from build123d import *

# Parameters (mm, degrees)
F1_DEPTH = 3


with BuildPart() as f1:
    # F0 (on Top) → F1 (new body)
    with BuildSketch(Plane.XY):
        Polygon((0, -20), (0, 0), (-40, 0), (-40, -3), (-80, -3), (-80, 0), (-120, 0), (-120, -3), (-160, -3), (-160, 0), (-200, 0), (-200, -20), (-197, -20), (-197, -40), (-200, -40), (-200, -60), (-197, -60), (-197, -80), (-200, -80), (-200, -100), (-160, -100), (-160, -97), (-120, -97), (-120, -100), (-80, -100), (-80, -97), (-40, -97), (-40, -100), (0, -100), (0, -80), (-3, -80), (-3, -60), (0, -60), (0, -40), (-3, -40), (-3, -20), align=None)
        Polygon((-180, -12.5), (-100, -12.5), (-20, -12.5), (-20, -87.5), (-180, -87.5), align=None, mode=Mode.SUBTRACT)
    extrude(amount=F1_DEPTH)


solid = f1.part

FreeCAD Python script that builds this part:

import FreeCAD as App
import Part
import Sketcher

doc = App.newDocument("Part")
body = doc.addObject("PartDesign::Body", "Body")

sketch1 = doc.addObject("Sketcher::SketchObject", "Sketch")
body.addObject(sketch1)
sketch1.AttachmentSupport = (doc.XY_Plane, [""])
sketch1.MapMode = "FlatFace"
sketch1.addGeometry([
    Part.LineSegment(App.Vector(0, -20, 0), App.Vector(0, 0, 0)),
    Part.LineSegment(App.Vector(0, 0, 0), App.Vector(-40, 0, 0)),
    Part.LineSegment(App.Vector(-40, 0, 0), App.Vector(-40, -3, 0)),
    Part.LineSegment(App.Vector(-40, -3, 0), App.Vector(-80, -3, 0)),
    Part.LineSegment(App.Vector(-80, -3, 0), App.Vector(-80, 0, 0)),
    Part.LineSegment(App.Vector(-80, 0, 0), App.Vector(-120, 0, 0)),
    Part.LineSegment(App.Vector(-120, 0, 0), App.Vector(-120, -3, 0)),
    Part.LineSegment(App.Vector(-120, -3, 0), App.Vector(-160, -3, 0)),
    Part.LineSegment(App.Vector(-160, -3, 0), App.Vector(-160, 0, 0)),
    Part.LineSegment(App.Vector(-160, 0, 0), App.Vector(-200, 0, 0)),
    Part.LineSegment(App.Vector(-200, 0, 0), App.Vector(-200, -20, 0)),
    Part.LineSegment(App.Vector(-200, -20, 0), App.Vector(-197, -20, 0)),
    Part.LineSegment(App.Vector(-197, -20, 0), App.Vector(-197, -40, 0)),
    Part.LineSegment(App.Vector(-197, -40, 0), App.Vector(-200, -40, 0)),
    Part.LineSegment(App.Vector(-200, -40, 0), App.Vector(-200, -60, 0)),
    Part.LineSegment(App.Vector(-200, -60, 0), App.Vector(-197, -60, 0)),
    Part.LineSegment(App.Vector(-197, -60, 0), App.Vector(-197, -80, 0)),
    Part.LineSegment(App.Vector(-197, -80, 0), App.Vector(-200, -80, 0)),
    Part.LineSegment(App.Vector(-200, -80, 0), App.Vector(-200, -100, 0)),
    Part.LineSegment(App.Vector(-200, -100, 0), App.Vector(-160, -100, 0)),
    Part.LineSegment(App.Vector(-160, -100, 0), App.Vector(-160, -97, 0)),
    Part.LineSegment(App.Vector(-160, -97, 0), App.Vector(-120, -97, 0)),
    Part.LineSegment(App.Vector(-120, -97, 0), App.Vector(-120, -100, 0)),
    Part.LineSegment(App.Vector(-120, -100, 0), App.Vector(-80, -100, 0)),
    Part.LineSegment(App.Vector(-80, -100, 0), App.Vector(-80, -97, 0)),
    Part.LineSegment(App.Vector(-80, -97, 0), App.Vector(-40, -97, 0)),
    Part.LineSegment(App.Vector(-40, -97, 0), App.Vector(-40, -100, 0)),
    Part.LineSegment(App.Vector(-40, -100, 0), App.Vector(0, -100, 0)),
    Part.LineSegment(App.Vector(0, -100, 0), App.Vector(0, -80, 0)),
    Part.LineSegment(App.Vector(0, -80, 0), App.Vector(-3, -80, 0)),
    Part.LineSegment(App.Vector(-3, -80, 0), App.Vector(-3, -60, 0)),
    Part.LineSegment(App.Vector(-3, -60, 0), App.Vector(0, -60, 0)),
    Part.LineSegment(App.Vector(0, -60, 0), App.Vector(0, -40, 0)),
    Part.LineSegment(App.Vector(0, -40, 0), App.Vector(-3, -40, 0)),
    Part.LineSegment(App.Vector(-3, -40, 0), App.Vector(-3, -20, 0)),
    Part.LineSegment(App.Vector(-3, -20, 0), App.Vector(0, -20, 0)),
    Part.LineSegment(App.Vector(-180, -87.5, 0), App.Vector(-180, -12.5, 0)),
    Part.LineSegment(App.Vector(-180, -12.5, 0), App.Vector(-20, -12.5, 0)),
    Part.LineSegment(App.Vector(-20, -12.5, 0), App.Vector(-20, -87.5, 0)),
    Part.LineSegment(App.Vector(-20, -87.5, 0), App.Vector(-180, -87.5, 0)),
], False)
sketch1.addConstraint([
    Sketcher.Constraint("Coincident", 0, 2, 1, 1),
    Sketcher.Constraint("Coincident", 1, 2, 2, 1),
    Sketcher.Constraint("Coincident", 2, 2, 3, 1),
    Sketcher.Constraint("Coincident", 3, 2, 4, 1),
    Sketcher.Constraint("Coincident", 4, 2, 5, 1),
    Sketcher.Constraint("Coincident", 5, 2, 6, 1),
    Sketcher.Constraint("Coincident", 6, 2, 7, 1),
    Sketcher.Constraint("Coincident", 7, 2, 8, 1),
    Sketcher.Constraint("Coincident", 8, 2, 9, 1),
    Sketcher.Constraint("Coincident", 9, 2, 10, 1),
    Sketcher.Constraint("Coincident", 10, 2, 11, 1),
    Sketcher.Constraint("Coincident", 11, 2, 12, 1),
    Sketcher.Constraint("Coincident", 12, 2, 13, 1),
    Sketcher.Constraint("Coincident", 13, 2, 14, 1),
    Sketcher.Constraint("Coincident", 14, 2, 15, 1),
    Sketcher.Constraint("Coincident", 15, 2, 16, 1),
    Sketcher.Constraint("Coincident", 16, 2, 17, 1),
    Sketcher.Constraint("Coincident", 17, 2, 18, 1),
    Sketcher.Constraint("Coincident", 18, 2, 19, 1),
    Sketcher.Constraint("Coincident", 19, 2, 20, 1),
    Sketcher.Constraint("Coincident", 20, 2, 21, 1),
    Sketcher.Constraint("Coincident", 21, 2, 22, 1),
    Sketcher.Constraint("Coincident", 22, 2, 23, 1),
    Sketcher.Constraint("Coincident", 23, 2, 24, 1),
    Sketcher.Constraint("Coincident", 24, 2, 25, 1),
    Sketcher.Constraint("Coincident", 25, 2, 26, 1),
    Sketcher.Constraint("Coincident", 26, 2, 27, 1),
    Sketcher.Constraint("Coincident", 27, 2, 28, 1),
    Sketcher.Constraint("Coincident", 28, 2, 29, 1),
    Sketcher.Constraint("Coincident", 29, 2, 30, 1),
    Sketcher.Constraint("Coincident", 30, 2, 31, 1),
    Sketcher.Constraint("Coincident", 31, 2, 32, 1),
    Sketcher.Constraint("Coincident", 32, 2, 33, 1),
    Sketcher.Constraint("Coincident", 33, 2, 34, 1),
    Sketcher.Constraint("Coincident", 34, 2, 35, 1),
    Sketcher.Constraint("Coincident", 35, 2, 0, 1),
    Sketcher.Constraint("Coincident", 36, 2, 37, 1),
    Sketcher.Constraint("Coincident", 37, 2, 38, 1),
    Sketcher.Constraint("Coincident", 38, 2, 39, 1),
    Sketcher.Constraint("Coincident", 39, 2, 36, 1),
    Sketcher.Constraint("Vertical", 0),
    Sketcher.Constraint("Horizontal", 1),
    Sketcher.Constraint("Vertical", 2),
    Sketcher.Constraint("Horizontal", 3),
    Sketcher.Constraint("Vertical", 4),
    Sketcher.Constraint("Horizontal", 5),
    Sketcher.Constraint("Vertical", 6),
    Sketcher.Constraint("Horizontal", 7),
    Sketcher.Constraint("Vertical", 8),
    Sketcher.Constraint("Horizontal", 9),
    Sketcher.Constraint("Vertical", 10),
    Sketcher.Constraint("Horizontal", 11),
    Sketcher.Constraint("Vertical", 12),
    Sketcher.Constraint("Horizontal", 13),
    Sketcher.Constraint("Vertical", 14),
    Sketcher.Constraint("Horizontal", 15),
    Sketcher.Constraint("Vertical", 16),
    Sketcher.Constraint("Horizontal", 17),
    Sketcher.Constraint("Vertical", 18),
    Sketcher.Constraint("Horizontal", 19),
    Sketcher.Constraint("Vertical", 20),
    Sketcher.Constraint("Horizontal", 21),
    Sketcher.Constraint("Vertical", 22),
    Sketcher.Constraint("Horizontal", 23),
    Sketcher.Constraint("Vertical", 24),
    Sketcher.Constraint("Horizontal", 25),
    Sketcher.Constraint("Vertical", 26),
    Sketcher.Constraint("Horizontal", 27),
    Sketcher.Constraint("Vertical", 28),
    Sketcher.Constraint("Horizontal", 29),
    Sketcher.Constraint("Vertical", 30),
    Sketcher.Constraint("Horizontal", 31),
    Sketcher.Constraint("Vertical", 32),
    Sketcher.Constraint("Horizontal", 33),
    Sketcher.Constraint("Vertical", 34),
    Sketcher.Constraint("Horizontal", 35),
    Sketcher.Constraint("Vertical", 36),
    Sketcher.Constraint("Horizontal", 37),
    Sketcher.Constraint("Vertical", 38),
    Sketcher.Constraint("Horizontal", 39),
    Sketcher.Constraint("Coincident", 0, 2, -1, 1),
    Sketcher.Constraint("PointOnObject", 4, 2, -1),
    Sketcher.Constraint("PointOnObject", 8, 2, -1),
    Sketcher.Constraint("PointOnObject", 27, 2, -2),
    Sketcher.Constraint("PointOnObject", 31, 2, -2),
    Sketcher.Constraint("Horizontal", 3, 2, 6, 2),
    Sketcher.Constraint("Horizontal", 19, 2, 22, 2),
    Sketcher.Constraint("Horizontal", 21, 2, 24, 2),
    Sketcher.Constraint("Horizontal", 23, 2, 26, 2),
    Sketcher.Constraint("Horizontal", 17, 2, 28, 2),
    Sketcher.Constraint("Horizontal", 15, 2, 30, 2),
    Sketcher.Constraint("Horizontal", 13, 2, 32, 2),
    Sketcher.Constraint("Horizontal", 11, 2, 34, 2),
    Sketcher.Constraint("Vertical", 10, 2, 13, 2),
    Sketcher.Constraint("Vertical", 12, 2, 15, 2),
    Sketcher.Constraint("Vertical", 14, 2, 17, 2),
    Sketcher.Constraint("Vertical", 8, 2, 19, 2),
    Sketcher.Constraint("Vertical", 6, 2, 21, 2),
    Sketcher.Constraint("Vertical", 4, 2, 23, 2),
    Sketcher.Constraint("Vertical", 2, 2, 25, 2),
    Sketcher.Constraint("Vertical", 30, 2, 33, 2),
    Sketcher.Constraint("Equal", 1, 3),
    Sketcher.Constraint("Equal", 3, 5),
    Sketcher.Constraint("Equal", 5, 7),
    Sketcher.Constraint("Equal", 7, 9),
    Sketcher.Constraint("Equal", 17, 29),
    Sketcher.Constraint("Equal", 35, 2),
    Sketcher.Constraint("Equal", 10, 12),
    Sketcher.Constraint("Equal", 12, 14),
    Sketcher.Constraint("Equal", 14, 16),
    Sketcher.Constraint("Equal", 16, 18),
    Sketcher.Constraint("Equal", 8, 20),
    Sketcher.Constraint("DistanceX", 1, 2, 1, 1, 40.0),
    Sketcher.Constraint("DistanceX", 11, 1, 11, 2, 3.0),
    Sketcher.Constraint("DistanceX", 37, 1, 37, 2, 160.0),
    Sketcher.Constraint("DistanceY", 0, 1, 0, 2, 20.0),
    Sketcher.Constraint("DistanceY", 36, 1, 36, 2, 75.0),
    Sketcher.Constraint("DistanceX", 36, 2, -1, 1, 180.0),
    Sketcher.Constraint("DistanceY", 36, 2, -1, 1, 12.5),
])
pad1 = doc.addObject("PartDesign::Pad", "Pad")
body.addObject(pad1)
pad1.Profile = sketch1
pad1.Length = 3

doc.recompute()
